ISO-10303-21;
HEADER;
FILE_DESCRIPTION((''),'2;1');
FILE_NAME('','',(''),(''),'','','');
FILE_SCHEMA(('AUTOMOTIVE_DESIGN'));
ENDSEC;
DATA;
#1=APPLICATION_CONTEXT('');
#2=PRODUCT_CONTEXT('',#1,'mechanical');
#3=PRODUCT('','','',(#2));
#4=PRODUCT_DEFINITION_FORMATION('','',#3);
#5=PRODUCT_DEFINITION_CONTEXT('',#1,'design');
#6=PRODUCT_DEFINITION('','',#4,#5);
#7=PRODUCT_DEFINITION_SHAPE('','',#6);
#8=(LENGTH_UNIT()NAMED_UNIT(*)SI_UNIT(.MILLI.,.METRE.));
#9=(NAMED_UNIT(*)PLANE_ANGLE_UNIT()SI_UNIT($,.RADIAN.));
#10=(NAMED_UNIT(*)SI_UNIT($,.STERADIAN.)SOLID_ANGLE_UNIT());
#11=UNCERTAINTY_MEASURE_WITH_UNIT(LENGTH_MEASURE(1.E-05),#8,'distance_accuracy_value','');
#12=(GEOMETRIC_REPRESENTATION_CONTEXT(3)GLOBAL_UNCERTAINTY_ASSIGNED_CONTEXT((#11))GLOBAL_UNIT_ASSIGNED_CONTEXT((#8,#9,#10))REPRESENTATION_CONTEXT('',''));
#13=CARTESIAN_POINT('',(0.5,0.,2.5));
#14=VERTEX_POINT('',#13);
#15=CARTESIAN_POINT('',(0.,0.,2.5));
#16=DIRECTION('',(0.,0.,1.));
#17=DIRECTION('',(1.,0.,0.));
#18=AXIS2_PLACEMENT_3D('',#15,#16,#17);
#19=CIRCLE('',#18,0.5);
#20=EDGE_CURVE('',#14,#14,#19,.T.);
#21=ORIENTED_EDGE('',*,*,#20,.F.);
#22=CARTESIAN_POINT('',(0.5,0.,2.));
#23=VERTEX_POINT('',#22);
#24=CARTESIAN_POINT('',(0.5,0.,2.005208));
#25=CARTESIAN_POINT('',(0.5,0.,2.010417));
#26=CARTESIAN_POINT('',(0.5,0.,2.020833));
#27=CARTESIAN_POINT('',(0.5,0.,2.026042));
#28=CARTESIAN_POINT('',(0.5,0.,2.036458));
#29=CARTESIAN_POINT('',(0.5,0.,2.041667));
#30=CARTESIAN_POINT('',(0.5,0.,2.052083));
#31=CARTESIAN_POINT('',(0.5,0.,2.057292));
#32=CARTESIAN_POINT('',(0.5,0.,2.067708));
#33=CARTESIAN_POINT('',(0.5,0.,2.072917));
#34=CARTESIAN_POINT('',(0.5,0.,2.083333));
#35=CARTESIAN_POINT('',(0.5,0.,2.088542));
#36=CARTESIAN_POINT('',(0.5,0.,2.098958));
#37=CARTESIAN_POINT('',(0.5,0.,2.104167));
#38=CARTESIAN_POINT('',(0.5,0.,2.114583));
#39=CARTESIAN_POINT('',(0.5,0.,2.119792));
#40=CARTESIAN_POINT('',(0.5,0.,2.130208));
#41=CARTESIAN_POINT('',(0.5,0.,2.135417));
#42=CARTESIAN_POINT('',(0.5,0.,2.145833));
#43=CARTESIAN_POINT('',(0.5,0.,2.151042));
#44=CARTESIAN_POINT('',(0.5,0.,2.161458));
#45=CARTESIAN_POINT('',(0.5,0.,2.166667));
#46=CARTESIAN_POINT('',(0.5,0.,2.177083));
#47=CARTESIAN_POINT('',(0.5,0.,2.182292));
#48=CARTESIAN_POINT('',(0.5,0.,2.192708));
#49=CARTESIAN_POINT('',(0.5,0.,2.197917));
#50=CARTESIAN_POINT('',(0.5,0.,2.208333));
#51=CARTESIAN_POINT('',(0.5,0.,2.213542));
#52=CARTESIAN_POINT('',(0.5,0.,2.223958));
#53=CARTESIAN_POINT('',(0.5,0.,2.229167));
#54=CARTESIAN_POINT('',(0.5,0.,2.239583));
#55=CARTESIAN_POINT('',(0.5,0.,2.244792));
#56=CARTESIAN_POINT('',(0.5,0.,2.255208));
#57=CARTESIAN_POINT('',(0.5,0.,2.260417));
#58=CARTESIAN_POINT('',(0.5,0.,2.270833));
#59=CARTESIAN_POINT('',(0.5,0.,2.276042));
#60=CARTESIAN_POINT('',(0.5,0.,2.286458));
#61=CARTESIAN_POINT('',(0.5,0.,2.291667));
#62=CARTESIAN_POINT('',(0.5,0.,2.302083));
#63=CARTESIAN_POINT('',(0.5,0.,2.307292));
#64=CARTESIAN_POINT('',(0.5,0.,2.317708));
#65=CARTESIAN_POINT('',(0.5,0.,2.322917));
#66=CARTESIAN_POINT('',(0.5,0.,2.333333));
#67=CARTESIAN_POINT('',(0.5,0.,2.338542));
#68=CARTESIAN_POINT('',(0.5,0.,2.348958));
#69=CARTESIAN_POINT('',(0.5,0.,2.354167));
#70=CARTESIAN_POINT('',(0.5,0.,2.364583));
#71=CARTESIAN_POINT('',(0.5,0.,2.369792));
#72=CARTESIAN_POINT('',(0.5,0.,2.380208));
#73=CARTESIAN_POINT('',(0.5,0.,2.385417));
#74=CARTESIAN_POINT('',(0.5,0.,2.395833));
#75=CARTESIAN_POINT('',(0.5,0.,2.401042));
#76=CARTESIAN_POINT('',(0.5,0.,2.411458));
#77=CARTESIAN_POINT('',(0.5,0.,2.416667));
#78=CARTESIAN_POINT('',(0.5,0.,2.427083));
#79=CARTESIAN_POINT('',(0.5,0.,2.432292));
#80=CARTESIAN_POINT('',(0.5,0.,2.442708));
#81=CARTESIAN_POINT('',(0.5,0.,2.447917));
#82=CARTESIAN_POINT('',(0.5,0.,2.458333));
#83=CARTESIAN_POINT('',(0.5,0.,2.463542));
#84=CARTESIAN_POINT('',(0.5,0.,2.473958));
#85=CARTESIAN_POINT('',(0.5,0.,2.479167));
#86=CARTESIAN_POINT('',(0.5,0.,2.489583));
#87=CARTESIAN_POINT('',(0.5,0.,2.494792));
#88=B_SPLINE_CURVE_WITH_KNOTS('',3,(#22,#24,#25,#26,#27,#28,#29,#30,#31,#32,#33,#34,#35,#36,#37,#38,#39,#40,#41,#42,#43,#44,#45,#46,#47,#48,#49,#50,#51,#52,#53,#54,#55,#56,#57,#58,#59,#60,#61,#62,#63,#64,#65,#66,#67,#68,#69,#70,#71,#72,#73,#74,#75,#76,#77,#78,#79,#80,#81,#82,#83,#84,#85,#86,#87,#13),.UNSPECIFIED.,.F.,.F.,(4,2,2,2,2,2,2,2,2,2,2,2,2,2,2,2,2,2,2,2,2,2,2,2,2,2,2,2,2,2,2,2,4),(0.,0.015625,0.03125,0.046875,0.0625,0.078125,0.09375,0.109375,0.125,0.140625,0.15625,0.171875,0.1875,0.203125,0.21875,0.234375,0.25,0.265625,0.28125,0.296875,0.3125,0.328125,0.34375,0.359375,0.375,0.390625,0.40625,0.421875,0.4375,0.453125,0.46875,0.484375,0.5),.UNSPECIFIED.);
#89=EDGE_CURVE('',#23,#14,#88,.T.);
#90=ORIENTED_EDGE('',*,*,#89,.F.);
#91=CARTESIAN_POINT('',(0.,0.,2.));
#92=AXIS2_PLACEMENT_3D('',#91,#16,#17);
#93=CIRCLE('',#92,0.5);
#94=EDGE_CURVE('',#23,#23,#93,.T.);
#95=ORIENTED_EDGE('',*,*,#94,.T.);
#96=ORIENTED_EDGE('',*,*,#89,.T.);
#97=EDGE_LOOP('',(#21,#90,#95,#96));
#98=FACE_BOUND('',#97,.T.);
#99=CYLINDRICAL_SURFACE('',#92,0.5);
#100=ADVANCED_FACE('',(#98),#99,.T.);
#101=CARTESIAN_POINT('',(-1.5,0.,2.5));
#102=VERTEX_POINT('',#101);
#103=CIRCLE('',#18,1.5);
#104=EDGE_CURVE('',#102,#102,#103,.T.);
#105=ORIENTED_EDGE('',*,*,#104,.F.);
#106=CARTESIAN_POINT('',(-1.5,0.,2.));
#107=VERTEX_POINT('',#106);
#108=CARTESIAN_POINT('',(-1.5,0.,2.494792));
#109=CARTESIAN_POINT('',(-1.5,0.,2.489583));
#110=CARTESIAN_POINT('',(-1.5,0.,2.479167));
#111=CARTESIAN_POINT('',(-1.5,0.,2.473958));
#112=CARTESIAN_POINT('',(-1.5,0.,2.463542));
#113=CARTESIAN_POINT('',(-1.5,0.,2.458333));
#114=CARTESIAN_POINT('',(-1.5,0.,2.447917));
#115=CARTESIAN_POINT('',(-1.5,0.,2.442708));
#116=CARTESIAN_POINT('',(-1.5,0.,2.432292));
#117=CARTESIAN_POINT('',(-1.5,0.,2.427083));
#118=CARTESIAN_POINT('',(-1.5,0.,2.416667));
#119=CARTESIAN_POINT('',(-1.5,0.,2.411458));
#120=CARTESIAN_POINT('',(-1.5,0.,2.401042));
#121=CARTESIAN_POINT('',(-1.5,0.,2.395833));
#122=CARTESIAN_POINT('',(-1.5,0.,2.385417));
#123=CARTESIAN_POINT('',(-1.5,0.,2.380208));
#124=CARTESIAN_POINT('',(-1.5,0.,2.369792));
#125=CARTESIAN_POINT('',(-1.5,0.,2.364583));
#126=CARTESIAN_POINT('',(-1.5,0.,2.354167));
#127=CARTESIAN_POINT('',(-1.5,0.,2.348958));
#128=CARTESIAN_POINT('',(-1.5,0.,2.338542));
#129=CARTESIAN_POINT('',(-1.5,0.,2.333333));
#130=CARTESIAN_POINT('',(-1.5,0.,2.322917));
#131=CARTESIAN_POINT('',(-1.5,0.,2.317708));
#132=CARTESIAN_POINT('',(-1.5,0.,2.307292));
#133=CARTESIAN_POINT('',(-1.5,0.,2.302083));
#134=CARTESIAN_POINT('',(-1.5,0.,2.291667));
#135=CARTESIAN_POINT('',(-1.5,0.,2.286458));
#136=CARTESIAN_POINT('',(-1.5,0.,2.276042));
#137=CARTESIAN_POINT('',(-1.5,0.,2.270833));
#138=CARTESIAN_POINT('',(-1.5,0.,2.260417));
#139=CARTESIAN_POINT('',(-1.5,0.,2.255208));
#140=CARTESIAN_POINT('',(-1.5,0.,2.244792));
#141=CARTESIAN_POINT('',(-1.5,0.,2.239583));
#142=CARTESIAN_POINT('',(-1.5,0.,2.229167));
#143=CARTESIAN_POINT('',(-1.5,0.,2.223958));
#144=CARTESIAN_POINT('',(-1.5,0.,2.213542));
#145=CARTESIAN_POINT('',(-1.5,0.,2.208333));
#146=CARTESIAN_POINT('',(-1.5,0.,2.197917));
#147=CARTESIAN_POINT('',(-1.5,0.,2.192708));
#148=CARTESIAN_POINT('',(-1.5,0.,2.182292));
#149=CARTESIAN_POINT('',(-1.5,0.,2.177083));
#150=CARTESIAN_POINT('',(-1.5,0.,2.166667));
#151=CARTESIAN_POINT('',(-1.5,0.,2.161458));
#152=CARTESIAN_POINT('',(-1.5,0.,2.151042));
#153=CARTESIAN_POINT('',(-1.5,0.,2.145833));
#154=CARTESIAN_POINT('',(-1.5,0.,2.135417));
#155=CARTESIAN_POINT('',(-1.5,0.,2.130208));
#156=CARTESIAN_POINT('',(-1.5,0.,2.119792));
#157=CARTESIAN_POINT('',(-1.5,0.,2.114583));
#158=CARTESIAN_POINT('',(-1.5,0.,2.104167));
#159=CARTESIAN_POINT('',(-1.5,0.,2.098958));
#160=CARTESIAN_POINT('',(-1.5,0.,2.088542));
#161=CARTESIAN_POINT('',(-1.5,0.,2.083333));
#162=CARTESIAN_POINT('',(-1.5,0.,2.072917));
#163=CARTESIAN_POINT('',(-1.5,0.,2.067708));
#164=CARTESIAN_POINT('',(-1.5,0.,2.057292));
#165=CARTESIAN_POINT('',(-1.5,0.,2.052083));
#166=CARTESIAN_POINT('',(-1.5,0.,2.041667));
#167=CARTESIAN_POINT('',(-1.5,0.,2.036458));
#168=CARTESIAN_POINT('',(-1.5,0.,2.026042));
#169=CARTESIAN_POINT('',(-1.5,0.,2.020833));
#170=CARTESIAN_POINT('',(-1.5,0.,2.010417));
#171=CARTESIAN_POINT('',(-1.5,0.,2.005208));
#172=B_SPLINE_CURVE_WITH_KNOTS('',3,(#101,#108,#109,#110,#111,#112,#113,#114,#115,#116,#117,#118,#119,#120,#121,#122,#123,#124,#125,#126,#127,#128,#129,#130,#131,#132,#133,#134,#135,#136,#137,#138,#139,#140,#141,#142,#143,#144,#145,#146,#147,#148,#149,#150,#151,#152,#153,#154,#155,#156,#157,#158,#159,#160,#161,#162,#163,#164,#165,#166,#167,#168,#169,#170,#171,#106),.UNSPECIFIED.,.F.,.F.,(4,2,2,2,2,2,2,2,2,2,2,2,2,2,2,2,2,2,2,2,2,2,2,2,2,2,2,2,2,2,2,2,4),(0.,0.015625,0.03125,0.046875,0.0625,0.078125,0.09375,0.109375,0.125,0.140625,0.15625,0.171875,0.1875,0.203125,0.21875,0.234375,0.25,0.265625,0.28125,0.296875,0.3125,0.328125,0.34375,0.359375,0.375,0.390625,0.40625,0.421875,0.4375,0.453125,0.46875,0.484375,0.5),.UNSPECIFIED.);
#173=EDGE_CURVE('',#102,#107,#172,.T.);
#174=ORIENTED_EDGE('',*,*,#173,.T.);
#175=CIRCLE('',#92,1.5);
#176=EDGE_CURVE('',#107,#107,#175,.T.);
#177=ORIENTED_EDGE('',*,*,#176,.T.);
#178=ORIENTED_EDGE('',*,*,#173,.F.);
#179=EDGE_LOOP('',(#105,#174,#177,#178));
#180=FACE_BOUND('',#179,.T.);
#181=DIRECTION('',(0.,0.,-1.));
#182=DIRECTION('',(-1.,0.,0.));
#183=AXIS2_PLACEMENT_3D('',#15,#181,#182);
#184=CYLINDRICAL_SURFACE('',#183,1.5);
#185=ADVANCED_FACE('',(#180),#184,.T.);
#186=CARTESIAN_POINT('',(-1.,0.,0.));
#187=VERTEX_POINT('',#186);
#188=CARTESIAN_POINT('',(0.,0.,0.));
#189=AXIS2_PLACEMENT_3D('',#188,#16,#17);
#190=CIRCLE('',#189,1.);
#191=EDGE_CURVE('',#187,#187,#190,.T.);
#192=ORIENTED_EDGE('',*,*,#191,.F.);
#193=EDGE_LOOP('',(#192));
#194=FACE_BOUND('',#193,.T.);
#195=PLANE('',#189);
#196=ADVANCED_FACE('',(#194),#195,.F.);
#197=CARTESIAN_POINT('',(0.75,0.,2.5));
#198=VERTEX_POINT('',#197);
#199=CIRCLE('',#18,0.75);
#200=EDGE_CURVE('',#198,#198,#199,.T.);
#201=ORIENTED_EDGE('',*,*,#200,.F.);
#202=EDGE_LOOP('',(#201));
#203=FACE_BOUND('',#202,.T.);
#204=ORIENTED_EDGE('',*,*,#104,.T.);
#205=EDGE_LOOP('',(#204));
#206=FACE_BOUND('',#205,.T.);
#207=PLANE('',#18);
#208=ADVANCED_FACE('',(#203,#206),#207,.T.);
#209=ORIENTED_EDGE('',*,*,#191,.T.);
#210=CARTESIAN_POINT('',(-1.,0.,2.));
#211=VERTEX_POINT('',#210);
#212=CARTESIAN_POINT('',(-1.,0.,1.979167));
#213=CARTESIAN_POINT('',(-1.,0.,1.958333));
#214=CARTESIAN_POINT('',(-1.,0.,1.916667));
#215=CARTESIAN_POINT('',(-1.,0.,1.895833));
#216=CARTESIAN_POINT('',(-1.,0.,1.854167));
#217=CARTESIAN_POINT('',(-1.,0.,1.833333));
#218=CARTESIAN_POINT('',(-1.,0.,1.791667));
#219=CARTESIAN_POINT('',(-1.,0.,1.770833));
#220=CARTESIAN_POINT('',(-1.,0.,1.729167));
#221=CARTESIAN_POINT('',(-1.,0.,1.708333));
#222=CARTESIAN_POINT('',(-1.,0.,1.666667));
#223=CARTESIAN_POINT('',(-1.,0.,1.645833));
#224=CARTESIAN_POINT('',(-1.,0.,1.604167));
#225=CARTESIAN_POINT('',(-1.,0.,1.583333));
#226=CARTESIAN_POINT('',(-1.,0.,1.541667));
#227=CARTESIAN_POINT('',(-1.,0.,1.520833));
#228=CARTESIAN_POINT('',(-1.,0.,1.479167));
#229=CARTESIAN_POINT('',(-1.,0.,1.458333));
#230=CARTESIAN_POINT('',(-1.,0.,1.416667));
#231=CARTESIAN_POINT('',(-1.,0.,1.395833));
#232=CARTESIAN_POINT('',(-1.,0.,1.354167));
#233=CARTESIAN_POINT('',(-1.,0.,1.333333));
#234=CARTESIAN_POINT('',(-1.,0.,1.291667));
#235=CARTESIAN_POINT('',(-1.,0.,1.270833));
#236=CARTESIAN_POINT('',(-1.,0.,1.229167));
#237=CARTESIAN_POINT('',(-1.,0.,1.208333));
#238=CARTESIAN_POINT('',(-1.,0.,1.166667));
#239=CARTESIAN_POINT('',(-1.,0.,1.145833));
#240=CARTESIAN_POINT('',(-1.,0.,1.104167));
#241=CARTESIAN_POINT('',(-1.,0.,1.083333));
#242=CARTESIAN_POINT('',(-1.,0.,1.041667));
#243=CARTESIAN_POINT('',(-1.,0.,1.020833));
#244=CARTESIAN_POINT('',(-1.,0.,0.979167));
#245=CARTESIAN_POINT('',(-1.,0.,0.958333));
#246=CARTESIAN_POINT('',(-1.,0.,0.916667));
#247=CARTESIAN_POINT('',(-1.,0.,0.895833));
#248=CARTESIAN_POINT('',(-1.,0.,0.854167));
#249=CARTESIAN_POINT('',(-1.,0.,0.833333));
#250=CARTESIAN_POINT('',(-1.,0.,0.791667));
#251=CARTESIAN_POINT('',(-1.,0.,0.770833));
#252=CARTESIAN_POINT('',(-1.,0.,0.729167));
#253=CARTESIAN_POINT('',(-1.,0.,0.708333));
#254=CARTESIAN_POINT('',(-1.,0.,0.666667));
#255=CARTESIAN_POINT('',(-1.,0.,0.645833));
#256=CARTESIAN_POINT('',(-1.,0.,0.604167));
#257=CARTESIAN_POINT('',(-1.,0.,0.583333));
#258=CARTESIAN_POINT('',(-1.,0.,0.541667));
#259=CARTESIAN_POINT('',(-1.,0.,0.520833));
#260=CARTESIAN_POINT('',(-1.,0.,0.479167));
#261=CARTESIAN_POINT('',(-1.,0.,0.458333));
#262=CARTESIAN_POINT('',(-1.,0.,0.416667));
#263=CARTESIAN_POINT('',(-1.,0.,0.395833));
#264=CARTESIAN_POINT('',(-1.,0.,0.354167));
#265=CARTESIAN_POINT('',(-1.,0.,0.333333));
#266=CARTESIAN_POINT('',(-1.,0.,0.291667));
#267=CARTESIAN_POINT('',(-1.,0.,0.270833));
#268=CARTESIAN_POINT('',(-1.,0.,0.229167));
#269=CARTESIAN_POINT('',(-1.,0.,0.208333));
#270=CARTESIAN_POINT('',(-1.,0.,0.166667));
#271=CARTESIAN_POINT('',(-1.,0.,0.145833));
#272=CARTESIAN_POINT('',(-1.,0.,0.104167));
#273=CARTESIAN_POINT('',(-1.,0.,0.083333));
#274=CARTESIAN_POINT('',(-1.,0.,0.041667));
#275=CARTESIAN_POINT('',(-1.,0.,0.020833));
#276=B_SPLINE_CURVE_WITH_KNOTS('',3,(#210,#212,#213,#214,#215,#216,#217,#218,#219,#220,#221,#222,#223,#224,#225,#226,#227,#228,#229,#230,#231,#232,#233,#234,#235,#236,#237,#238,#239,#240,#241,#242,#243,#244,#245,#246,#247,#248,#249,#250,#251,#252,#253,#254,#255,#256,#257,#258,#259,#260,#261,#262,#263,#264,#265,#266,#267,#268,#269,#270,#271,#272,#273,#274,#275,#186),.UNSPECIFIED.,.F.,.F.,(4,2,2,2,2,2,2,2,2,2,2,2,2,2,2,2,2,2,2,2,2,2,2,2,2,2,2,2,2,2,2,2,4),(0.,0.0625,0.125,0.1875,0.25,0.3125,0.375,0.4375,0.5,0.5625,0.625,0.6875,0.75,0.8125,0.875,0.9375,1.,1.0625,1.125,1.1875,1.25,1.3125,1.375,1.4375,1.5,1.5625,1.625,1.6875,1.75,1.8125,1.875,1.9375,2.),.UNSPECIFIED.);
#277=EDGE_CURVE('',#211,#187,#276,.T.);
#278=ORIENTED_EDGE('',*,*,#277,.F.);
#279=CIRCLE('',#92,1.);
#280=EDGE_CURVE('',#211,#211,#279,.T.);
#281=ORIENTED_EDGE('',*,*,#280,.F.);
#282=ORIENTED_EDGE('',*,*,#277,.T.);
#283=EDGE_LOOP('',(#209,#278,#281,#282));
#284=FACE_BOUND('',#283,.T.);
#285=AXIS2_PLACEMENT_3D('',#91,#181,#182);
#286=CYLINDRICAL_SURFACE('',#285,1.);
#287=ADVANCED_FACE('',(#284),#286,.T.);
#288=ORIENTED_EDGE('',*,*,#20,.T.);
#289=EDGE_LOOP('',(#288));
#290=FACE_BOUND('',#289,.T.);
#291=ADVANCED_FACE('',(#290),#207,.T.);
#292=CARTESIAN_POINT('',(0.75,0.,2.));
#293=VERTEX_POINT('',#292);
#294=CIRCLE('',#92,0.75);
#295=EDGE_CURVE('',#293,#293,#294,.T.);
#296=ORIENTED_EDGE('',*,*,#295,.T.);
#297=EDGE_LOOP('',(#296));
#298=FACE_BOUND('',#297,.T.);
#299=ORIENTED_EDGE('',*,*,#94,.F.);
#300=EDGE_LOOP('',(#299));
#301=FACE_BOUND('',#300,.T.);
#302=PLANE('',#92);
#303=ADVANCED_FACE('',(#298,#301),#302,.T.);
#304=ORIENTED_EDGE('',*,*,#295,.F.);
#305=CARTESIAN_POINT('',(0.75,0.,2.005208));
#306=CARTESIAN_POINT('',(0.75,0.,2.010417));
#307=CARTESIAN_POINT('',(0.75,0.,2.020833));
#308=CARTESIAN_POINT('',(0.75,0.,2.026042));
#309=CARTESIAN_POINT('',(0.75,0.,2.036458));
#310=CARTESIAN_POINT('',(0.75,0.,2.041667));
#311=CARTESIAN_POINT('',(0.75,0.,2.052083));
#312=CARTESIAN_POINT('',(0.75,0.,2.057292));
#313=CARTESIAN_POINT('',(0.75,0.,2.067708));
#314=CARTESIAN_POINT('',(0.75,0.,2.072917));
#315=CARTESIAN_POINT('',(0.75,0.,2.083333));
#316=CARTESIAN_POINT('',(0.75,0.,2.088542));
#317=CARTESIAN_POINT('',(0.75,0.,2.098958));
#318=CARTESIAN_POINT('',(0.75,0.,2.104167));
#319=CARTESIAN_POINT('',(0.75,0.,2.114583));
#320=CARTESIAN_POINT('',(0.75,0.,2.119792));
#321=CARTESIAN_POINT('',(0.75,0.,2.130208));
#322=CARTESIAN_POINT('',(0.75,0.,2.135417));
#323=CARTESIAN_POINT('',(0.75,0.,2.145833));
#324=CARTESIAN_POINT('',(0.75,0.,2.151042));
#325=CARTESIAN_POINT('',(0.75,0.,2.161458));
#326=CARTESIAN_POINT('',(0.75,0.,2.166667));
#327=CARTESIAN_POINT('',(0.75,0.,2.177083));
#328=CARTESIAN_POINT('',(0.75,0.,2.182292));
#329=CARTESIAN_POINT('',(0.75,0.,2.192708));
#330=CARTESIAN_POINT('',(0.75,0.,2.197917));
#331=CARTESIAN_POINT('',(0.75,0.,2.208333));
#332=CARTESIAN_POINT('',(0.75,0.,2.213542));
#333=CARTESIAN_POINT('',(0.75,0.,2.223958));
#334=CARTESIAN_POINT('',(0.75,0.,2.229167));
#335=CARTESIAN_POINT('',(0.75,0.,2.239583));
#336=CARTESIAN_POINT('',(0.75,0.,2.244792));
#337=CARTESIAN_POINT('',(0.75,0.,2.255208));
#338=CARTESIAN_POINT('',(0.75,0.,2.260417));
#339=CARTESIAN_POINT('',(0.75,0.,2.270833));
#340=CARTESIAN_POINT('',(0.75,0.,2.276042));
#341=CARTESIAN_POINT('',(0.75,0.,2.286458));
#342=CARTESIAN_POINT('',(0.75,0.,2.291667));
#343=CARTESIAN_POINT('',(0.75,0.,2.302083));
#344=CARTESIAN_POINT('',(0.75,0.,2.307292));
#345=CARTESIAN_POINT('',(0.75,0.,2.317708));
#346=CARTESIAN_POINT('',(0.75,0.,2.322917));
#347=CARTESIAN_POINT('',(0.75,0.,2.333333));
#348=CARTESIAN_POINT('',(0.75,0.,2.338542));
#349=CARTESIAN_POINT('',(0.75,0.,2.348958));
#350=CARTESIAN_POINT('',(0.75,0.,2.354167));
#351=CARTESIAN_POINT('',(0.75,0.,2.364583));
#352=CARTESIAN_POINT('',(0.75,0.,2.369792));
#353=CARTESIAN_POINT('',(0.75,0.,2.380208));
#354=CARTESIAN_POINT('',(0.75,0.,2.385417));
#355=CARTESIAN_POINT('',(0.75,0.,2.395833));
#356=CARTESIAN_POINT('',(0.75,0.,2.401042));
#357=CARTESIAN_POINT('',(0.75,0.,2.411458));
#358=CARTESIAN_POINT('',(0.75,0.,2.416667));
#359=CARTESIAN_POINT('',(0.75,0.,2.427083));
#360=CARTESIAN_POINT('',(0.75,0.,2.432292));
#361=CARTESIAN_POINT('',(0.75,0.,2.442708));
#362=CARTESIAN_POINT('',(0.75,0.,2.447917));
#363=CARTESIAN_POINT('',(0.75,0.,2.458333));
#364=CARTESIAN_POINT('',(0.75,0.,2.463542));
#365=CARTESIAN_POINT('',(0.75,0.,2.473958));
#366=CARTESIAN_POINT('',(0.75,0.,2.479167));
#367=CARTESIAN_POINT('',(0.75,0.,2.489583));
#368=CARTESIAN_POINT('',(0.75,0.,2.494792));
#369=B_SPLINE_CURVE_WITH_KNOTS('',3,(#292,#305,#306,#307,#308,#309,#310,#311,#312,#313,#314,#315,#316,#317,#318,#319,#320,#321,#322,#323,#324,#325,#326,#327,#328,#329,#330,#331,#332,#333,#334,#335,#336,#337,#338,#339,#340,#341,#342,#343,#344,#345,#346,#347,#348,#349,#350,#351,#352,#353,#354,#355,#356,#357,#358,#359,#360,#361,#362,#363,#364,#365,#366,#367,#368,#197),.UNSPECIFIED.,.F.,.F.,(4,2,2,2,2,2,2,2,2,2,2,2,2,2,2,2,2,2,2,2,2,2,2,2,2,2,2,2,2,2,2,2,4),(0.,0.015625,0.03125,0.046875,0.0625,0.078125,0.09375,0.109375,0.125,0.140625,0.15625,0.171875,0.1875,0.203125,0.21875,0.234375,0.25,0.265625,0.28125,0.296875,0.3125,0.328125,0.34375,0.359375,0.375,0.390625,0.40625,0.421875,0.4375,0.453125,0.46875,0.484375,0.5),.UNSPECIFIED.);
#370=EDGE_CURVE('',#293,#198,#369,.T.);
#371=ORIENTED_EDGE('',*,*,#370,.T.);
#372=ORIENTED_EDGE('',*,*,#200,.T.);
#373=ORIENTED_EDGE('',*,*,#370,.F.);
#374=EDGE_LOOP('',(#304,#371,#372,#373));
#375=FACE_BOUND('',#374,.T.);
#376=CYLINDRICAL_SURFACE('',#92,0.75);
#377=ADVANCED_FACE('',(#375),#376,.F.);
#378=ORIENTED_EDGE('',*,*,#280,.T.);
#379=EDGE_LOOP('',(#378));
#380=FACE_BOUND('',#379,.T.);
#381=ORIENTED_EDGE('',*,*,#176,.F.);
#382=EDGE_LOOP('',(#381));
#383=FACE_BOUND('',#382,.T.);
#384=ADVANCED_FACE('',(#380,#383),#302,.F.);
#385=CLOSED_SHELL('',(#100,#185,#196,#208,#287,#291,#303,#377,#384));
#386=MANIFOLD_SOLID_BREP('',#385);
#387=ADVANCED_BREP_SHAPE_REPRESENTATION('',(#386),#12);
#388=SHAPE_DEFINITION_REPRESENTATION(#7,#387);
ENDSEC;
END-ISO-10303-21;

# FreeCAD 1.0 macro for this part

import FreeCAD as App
import Part
import Sketcher
from FreeCAD import Vector

doc = App.newDocument("Part")
body = doc.addObject("PartDesign::Body", "Body")

# Sketch on XY plane
sketch1 = body.newObject("Sketcher::SketchObject", "Sketch")
sketch1.AttachmentSupport = (doc.getObject("XY_Plane"), [""])
sketch1.MapMode = "FlatFace"
sketch1.addGeometry(Part.Circle(Vector(0, 0, 0), Vector(0, 0, 1), 1), False)
sketch1.addConstraint([
    Sketcher.Constraint("Coincident", 0, 3, -1, 1),
    Sketcher.Constraint("Diameter", 0, 2.0),
])
pad1 = body.newObject("PartDesign::Pad", "Pad")
pad1.Profile = sketch1
pad1.Length = 2

# Sketch on XY plane
sketch2 = body.newObject("Sketcher::SketchObject", "Sketch001")
sketch2.AttachmentSupport = (doc.getObject("XY_Plane"), [""])
sketch2.MapMode = "FlatFace"
sketch2.AttachmentOffset = App.Placement(Vector(0, 0, 2), App.Rotation())
sketch2.addGeometry(Part.Circle(Vector(0, 0, 0), Vector(0, 0, 1), 1.5), False)
sketch2.addConstraint([
    Sketcher.Constraint("Coincident", 0, 3, -1, 1),
    Sketcher.Constraint("Diameter", 0, 3.0),
])
pad2 = body.newObject("PartDesign::Pad", "Pad001")
pad2.Profile = sketch2
pad2.Length = 0.5

# Sketch on XY plane
sketch3 = body.newObject("Sketcher::SketchObject", "Sketch002")
sketch3.AttachmentSupport = (doc.getObject("XY_Plane"), [""])
sketch3.MapMode = "FlatFace"
sketch3.AttachmentOffset = App.Placement(Vector(0, 0, 2.5), App.Rotation())
sketch3.addGeometry([
    Part.Circle(Vector(0, 0, 0), Vector(0, 0, 1), 0.75),
    Part.Circle(Vector(0, 0, 0), Vector(0, 0, 1), 0.5),
], False)
sketch3.addConstraint([
    Sketcher.Constraint("Coincident", 0, 3, -1, 1),
    Sketcher.Constraint("Coincident", 1, 3, -1, 1),
    Sketcher.Constraint("Diameter", 1, 1.0),
    Sketcher.Constraint("Diameter", 0, 1.5),
])
pocket1 = body.newObject("PartDesign::Pocket", "Pocket")
pocket1.Profile = sketch3
pocket1.Length = 0.5

doc.recompute()
